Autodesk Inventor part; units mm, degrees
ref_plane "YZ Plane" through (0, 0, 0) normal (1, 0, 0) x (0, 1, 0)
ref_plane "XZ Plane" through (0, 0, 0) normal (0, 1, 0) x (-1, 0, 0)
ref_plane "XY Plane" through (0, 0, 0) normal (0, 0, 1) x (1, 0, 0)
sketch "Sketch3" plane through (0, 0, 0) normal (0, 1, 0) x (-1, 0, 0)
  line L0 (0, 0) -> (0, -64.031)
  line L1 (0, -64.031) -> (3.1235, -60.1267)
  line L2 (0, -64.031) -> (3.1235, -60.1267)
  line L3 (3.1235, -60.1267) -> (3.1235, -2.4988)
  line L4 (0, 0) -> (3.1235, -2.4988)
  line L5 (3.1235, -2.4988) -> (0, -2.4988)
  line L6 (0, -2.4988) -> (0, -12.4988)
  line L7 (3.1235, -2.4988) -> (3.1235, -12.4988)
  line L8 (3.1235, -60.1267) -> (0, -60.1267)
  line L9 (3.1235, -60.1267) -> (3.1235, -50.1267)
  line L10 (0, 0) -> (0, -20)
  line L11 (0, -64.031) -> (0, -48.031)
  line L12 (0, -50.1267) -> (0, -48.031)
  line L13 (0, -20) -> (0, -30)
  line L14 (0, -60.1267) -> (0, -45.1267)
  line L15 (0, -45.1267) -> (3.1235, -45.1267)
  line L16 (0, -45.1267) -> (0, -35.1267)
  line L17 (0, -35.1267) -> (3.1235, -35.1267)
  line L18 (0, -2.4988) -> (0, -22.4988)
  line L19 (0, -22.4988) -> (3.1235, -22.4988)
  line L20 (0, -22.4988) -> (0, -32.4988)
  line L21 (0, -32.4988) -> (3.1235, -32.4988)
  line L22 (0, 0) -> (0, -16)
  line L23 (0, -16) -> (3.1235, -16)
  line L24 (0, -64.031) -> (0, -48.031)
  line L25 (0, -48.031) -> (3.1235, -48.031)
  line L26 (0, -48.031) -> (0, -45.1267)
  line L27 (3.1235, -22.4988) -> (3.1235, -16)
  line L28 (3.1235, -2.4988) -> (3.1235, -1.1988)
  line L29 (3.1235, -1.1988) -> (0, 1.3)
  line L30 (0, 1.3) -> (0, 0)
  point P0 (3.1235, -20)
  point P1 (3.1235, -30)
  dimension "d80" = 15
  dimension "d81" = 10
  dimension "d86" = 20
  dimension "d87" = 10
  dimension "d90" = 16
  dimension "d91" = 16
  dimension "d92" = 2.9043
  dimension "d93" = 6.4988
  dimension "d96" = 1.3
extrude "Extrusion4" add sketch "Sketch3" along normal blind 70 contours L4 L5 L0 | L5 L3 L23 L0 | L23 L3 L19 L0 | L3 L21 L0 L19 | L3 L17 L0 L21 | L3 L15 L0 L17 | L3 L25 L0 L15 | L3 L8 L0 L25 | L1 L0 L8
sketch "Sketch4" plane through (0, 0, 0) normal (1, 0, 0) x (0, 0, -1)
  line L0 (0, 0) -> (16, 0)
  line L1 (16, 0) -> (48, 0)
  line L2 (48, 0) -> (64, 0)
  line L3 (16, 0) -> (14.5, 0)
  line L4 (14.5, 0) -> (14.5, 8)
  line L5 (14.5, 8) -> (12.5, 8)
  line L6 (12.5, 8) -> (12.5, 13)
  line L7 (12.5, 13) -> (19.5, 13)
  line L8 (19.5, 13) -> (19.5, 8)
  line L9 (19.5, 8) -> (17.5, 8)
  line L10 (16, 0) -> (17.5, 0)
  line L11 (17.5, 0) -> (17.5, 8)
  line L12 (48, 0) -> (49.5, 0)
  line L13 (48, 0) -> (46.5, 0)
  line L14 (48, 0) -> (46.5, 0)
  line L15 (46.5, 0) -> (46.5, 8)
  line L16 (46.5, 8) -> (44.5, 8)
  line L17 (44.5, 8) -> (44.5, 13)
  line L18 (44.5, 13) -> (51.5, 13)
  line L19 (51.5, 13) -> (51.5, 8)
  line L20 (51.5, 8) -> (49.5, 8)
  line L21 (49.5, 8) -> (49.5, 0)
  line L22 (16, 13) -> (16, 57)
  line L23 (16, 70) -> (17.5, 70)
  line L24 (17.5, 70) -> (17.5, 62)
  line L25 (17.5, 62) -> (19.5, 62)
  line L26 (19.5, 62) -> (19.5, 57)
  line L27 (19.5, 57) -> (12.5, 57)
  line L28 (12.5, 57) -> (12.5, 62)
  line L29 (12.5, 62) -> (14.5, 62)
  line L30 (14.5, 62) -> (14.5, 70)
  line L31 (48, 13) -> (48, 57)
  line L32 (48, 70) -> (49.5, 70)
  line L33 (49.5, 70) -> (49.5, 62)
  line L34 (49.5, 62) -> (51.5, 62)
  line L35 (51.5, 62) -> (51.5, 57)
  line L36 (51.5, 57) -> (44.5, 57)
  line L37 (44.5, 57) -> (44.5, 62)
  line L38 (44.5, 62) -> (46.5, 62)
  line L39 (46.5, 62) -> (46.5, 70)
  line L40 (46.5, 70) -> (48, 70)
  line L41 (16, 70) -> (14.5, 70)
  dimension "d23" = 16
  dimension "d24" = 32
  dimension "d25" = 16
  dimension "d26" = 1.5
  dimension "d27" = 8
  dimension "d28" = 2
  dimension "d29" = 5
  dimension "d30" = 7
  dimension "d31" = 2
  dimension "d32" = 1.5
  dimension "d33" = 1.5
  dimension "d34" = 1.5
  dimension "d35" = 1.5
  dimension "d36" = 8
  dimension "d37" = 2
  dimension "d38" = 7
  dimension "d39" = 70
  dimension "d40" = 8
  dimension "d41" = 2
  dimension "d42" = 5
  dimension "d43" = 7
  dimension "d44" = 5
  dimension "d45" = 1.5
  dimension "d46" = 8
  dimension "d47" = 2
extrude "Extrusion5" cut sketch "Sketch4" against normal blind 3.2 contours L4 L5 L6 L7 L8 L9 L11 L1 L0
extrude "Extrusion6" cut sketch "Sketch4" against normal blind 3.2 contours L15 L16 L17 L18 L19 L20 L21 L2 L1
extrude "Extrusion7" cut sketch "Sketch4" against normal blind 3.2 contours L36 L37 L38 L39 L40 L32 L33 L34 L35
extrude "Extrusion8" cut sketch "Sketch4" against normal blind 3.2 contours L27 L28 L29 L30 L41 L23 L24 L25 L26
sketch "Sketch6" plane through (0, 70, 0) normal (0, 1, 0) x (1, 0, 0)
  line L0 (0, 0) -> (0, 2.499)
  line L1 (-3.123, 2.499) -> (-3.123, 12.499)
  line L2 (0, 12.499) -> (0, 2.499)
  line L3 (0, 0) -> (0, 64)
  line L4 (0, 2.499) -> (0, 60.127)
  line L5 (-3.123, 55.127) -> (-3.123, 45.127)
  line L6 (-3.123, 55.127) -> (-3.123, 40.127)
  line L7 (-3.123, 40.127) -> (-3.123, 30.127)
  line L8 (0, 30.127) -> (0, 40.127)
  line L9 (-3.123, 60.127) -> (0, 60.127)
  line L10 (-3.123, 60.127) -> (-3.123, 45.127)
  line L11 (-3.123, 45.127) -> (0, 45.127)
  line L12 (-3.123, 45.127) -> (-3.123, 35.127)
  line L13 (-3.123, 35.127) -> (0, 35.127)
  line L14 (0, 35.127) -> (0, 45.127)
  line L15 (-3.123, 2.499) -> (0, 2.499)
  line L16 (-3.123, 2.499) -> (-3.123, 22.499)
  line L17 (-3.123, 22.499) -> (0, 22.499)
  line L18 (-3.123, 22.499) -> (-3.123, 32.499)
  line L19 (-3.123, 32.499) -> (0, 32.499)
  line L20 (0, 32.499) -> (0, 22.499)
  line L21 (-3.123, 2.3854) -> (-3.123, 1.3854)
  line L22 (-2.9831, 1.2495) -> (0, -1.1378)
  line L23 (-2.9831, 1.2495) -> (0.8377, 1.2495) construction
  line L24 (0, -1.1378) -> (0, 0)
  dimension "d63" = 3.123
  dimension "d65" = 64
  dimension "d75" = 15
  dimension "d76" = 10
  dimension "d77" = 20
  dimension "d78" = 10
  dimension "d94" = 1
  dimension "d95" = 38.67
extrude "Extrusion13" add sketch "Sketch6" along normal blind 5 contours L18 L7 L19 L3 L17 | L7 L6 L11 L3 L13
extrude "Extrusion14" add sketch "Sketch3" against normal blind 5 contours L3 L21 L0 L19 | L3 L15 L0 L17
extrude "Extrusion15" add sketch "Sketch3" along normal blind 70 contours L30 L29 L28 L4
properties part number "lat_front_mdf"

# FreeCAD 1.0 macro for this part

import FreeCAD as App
import Part
import Sketcher
from FreeCAD import Vector
Q = App.Units.Quantity

doc = App.newDocument("Part")
body = doc.addObject("PartDesign::Body", "Body")

# Sketch on XZ plane
sketch1 = body.newObject("Sketcher::SketchObject", "Sketch")
sketch1.AttachmentSupport = (doc.getObject("XZ_Plane"), [""])
sketch1.MapMode = "FlatFace"
sketch1.addGeometry(Part.LineSegment(Vector(-3.1, -2.5, 0), Vector(0, 0, 0)), False)
sketch1.addGeometry(Part.LineSegment(Vector(0, 0, 0), Vector(0, -64, 0)), False)
sketch1.addGeometry(Part.LineSegment(Vector(0, -64, 0), Vector(-3.1, -60.1, 0)), False)
sketch1.addGeometry(Part.LineSegment(Vector(-3.1, -60.1, 0), Vector(-3.1, -2.5, 0)), False)
sketch1.addConstraint(Sketcher.Constraint("Coincident", 0, 2, 1, 1))
sketch1.addConstraint(Sketcher.Constraint("Coincident", 1, 2, 2, 1))
sketch1.addConstraint(Sketcher.Constraint("Coincident", 2, 2, 3, 1))
sketch1.addConstraint(Sketcher.Constraint("Coincident", 3, 2, 0, 1))
sketch1.addConstraint(Sketcher.Constraint("Vertical", 1))
sketch1.addConstraint(Sketcher.Constraint("Vertical", 3))
sketch1.addConstraint(Sketcher.Constraint("Coincident", 0, 2, -1, 1))
sketch1.addConstraint(Sketcher.Constraint("Perpendicular", 0, 2))
sketch1.addConstraint(Sketcher.Constraint("Distance", 0, 4.0))
sketch1.addConstraint(Sketcher.Constraint("Distance", 2, 5.0))
sketch1.addConstraint(Sketcher.Constraint("DistanceY", 1, 2, 1, 1, 64.031))
pad1 = body.newObject("PartDesign::Pad", "Pad")
pad1.Profile = sketch1
pad1.Length = 70
pad1.Reversed = True

# Sketch on YZ plane
sketch2 = body.newObject("Sketcher::SketchObject", "Sketch001")
sketch2.AttachmentSupport = (doc.getObject("YZ_Plane"), [""])
sketch2.MapMode = "FlatFace"
sketch2.addGeometry(Part.LineSegment(Vector(8, -14.5, 0), Vector(0, -14.5, 0)), False)
sketch2.addGeometry(Part.LineSegment(Vector(0, -14.5, 0), Vector(0, -17.5, 0)), False)
sketch2.addGeometry(Part.LineSegment(Vector(0, -17.5, 0), Vector(8, -17.5, 0)), False)
sketch2.addGeometry(Part.LineSegment(Vector(8, -17.5, 0), Vector(8, -19.5, 0)), False)
sketch2.addGeometry(Part.LineSegment(Vector(8, -19.5, 0), Vector(13, -19.5, 0)), False)
sketch2.addGeometry(Part.LineSegment(Vector(13, -19.5, 0), Vector(13, -12.5, 0)), False)
sketch2.addGeometry(Part.LineSegment(Vector(13, -12.5, 0), Vector(8, -12.5, 0)), False)
sketch2.addGeometry(Part.LineSegment(Vector(8, -12.5, 0), Vector(8, -14.5, 0)), False)
sketch2.addConstraint(Sketcher.Constraint("Coincident", 0, 2, 1, 1))
sketch2.addConstraint(Sketcher.Constraint("Coincident", 1, 2, 2, 1))
sketch2.addConstraint(Sketcher.Constraint("Coincident", 2, 2, 3, 1))
sketch2.addConstraint(Sketcher.Constraint("Coincident", 3, 2, 4, 1))
sketch2.addConstraint(Sketcher.Constraint("Coincident", 4, 2, 5, 1))
sketch2.addConstraint(Sketcher.Constraint("Coincident", 5, 2, 6, 1))
sketch2.addConstraint(Sketcher.Constraint("Coincident", 6, 2, 7, 1))
sketch2.addConstraint(Sketcher.Constraint("Coincident", 7, 2, 0, 1))
sketch2.addConstraint(Sketcher.Constraint("Horizontal", 0))
sketch2.addConstraint(Sketcher.Constraint("Vertical", 1))
sketch2.addConstraint(Sketcher.Constraint("Horizontal", 2))
sketch2.addConstraint(Sketcher.Constraint("Vertical", 3))
sketch2.addConstraint(Sketcher.Constraint("Horizontal", 4))
sketch2.addConstraint(Sketcher.Constraint("Vertical", 5))
sketch2.addConstraint(Sketcher.Constraint("Horizontal", 6))
sketch2.addConstraint(Sketcher.Constraint("Vertical", 7))
sketch2.addConstraint(Sketcher.Constraint("PointOnObject", 0, 2, -2))
sketch2.addConstraint(Sketcher.Constraint("Vertical", 3, 2, 6, 2))
sketch2.addConstraint(Sketcher.Constraint("Equal", 3, 7))
sketch2.addConstraint(Sketcher.Constraint("DistanceX", 0, 2, 0, 1, 8.0))
sketch2.addConstraint(Sketcher.Constraint("DistanceX", 4, 1, 4, 2, 5.0))
sketch2.addConstraint(Sketcher.Constraint("DistanceY", 3, 2, 3, 1, 2.0))
sketch2.addConstraint(Sketcher.Constraint("DistanceY", 5, 1, 5, 2, 7.0))
sketch2.addConstraint(Sketcher.Constraint("DistanceY", 0, 2, -1, 1, 14.5))
pocket1 = body.newObject("PartDesign::Pocket", "Pocket")
pocket1.Profile = sketch2
pocket1.Length = 3.2

# Sketch on YZ plane
sketch3 = body.newObject("Sketcher::SketchObject", "Sketch002")
sketch3.AttachmentSupport = (doc.getObject("YZ_Plane"), [""])
sketch3.MapMode = "FlatFace"
sketch3.addGeometry(Part.LineSegment(Vector(8, -46.5, 0), Vector(0, -46.5, 0)), False)
sketch3.addGeometry(Part.LineSegment(Vector(0, -46.5, 0), Vector(0, -49.5, 0)), False)
sketch3.addGeometry(Part.LineSegment(Vector(0, -49.5, 0), Vector(8, -49.5, 0)), False)
sketch3.addGeometry(Part.LineSegment(Vector(8, -49.5, 0), Vector(8, -51.5, 0)), False)
sketch3.addGeometry(Part.LineSegment(Vector(8, -51.5, 0), Vector(13, -51.5, 0)), False)
sketch3.addGeometry(Part.LineSegment(Vector(13, -51.5, 0), Vector(13, -44.5, 0)), False)
sketch3.addGeometry(Part.LineSegment(Vector(13, -44.5, 0), Vector(8, -44.5, 0)), False)
sketch3.addGeometry(Part.LineSegment(Vector(8, -44.5, 0), Vector(8, -46.5, 0)), False)
sketch3.addConstraint(Sketcher.Constraint("Coincident", 0, 2, 1, 1))
sketch3.addConstraint(Sketcher.Constraint("Coincident", 1, 2, 2, 1))
sketch3.addConstraint(Sketcher.Constraint("Coincident", 2, 2, 3, 1))
sketch3.addConstraint(Sketcher.Constraint("Coincident", 3, 2, 4, 1))
sketch3.addConstraint(Sketcher.Constraint("Coincident", 4, 2, 5, 1))
sketch3.addConstraint(Sketcher.Constraint("Coincident", 5, 2, 6, 1))
sketch3.addConstraint(Sketcher.Constraint("Coincident", 6, 2, 7, 1))
sketch3.addConstraint(Sketcher.Constraint("Coincident", 7, 2, 0, 1))
sketch3.addConstraint(Sketcher.Constraint("Horizontal", 0))
sketch3.addConstraint(Sketcher.Constraint("Vertical", 1))
sketch3.addConstraint(Sketcher.Constraint("Horizontal", 2))
sketch3.addConstraint(Sketcher.Constraint("Vertical", 3))
sketch3.addConstraint(Sketcher.Constraint("Horizontal", 4))
sketch3.addConstraint(Sketcher.Constraint("Vertical", 5))
sketch3.addConstraint(Sketcher.Constraint("Horizontal", 6))
sketch3.addConstraint(Sketcher.Constraint("Vertical", 7))
sketch3.addConstraint(Sketcher.Constraint("PointOnObject", 0, 2, -2))
sketch3.addConstraint(Sketcher.Constraint("Vertical", 3, 2, 6, 2))
sketch3.addConstraint(Sketcher.Constraint("Equal", 3, 7))
sketch3.addConstraint(Sketcher.Constraint("DistanceX", 0, 2, 0, 1, 8.0))
sketch3.addConstraint(Sketcher.Constraint("DistanceX", 4, 1, 4, 2, 5.0))
sketch3.addConstraint(Sketcher.Constraint("DistanceY", 3, 2, 3, 1, 2.0))
sketch3.addConstraint(Sketcher.Constraint("DistanceY", 5, 1, 5, 2, 7.0))
sketch3.addConstraint(Sketcher.Constraint("DistanceY", 0, 2, -1, 1, 46.5))
pocket2 = body.newObject("PartDesign::Pocket", "Pocket001")
pocket2.Profile = sketch3
pocket2.Length = 3.2

# Sketch on YZ plane
sketch4 = body.newObject("Sketcher::SketchObject", "Sketch003")
sketch4.AttachmentSupport = (doc.getObject("YZ_Plane"), [""])
sketch4.MapMode = "FlatFace"
sketch4.addGeometry(Part.LineSegment(Vector(57, -44.5, 0), Vector(57, -51.5, 0)), False)
sketch4.addGeometry(Part.LineSegment(Vector(57, -51.5, 0), Vector(62, -51.5, 0)), False)
sketch4.addGeometry(Part.LineSegment(Vector(62, -51.5, 0), Vector(62, -49.5, 0)), False)
sketch4.addGeometry(Part.LineSegment(Vector(62, -49.5, 0), Vector(70, -49.5, 0)), False)
sketch4.addGeometry(Part.LineSegment(Vector(70, -49.5, 0), Vector(70, -46.5, 0)), False)
sketch4.addGeometry(Part.LineSegment(Vector(70, -46.5, 0), Vector(62, -46.5, 0)), False)
sketch4.addGeometry(Part.LineSegment(Vector(62, -46.5, 0), Vector(62, -44.5, 0)), False)
sketch4.addGeometry(Part.LineSegment(Vector(62, -44.5, 0), Vector(57, -44.5, 0)), False)
sketch4.addConstraint(Sketcher.Constraint("Coincident", 0, 2, 1, 1))
sketch4.addConstraint(Sketcher.Constraint("Coincident", 1, 2, 2, 1))
sketch4.addConstraint(Sketcher.Constraint("Coincident", 2, 2, 3, 1))
sketch4.addConstraint(Sketcher.Constraint("Coincident", 3, 2, 4, 1))
sketch4.addConstraint(Sketcher.Constraint("Coincident", 4, 2, 5, 1))
sketch4.addConstraint(Sketcher.Constraint("Coincident", 5, 2, 6, 1))
sketch4.addConstraint(Sketcher.Constraint("Coincident", 6, 2, 7, 1))
sketch4.addConstraint(Sketcher.Constraint("Coincident", 7, 2, 0, 1))
sketch4.addConstraint(Sketcher.Constraint("Vertical", 0))
sketch4.addConstraint(Sketcher.Constraint("Horizontal", 1))
sketch4.addConstraint(Sketcher.Constraint("Vertical", 2))
sketch4.addConstraint(Sketcher.Constraint("Horizontal", 3))
sketch4.addConstraint(Sketcher.Constraint("Vertical", 4))
sketch4.addConstraint(Sketcher.Constraint("Horizontal", 5))
sketch4.addConstraint(Sketcher.Constraint("Vertical", 6))
sketch4.addConstraint(Sketcher.Constraint("Horizontal", 7))
sketch4.addConstraint(Sketcher.Constraint("Vertical", 2, 2, 5, 2))
sketch4.addConstraint(Sketcher.Constraint("Equal", 2, 6))
sketch4.addConstraint(Sketcher.Constraint("DistanceX", 1, 1, 1, 2, 5.0))
sketch4.addConstraint(Sketcher.Constraint("DistanceX", 3, 1, 3, 2, 8.0))
sketch4.addConstraint(Sketcher.Constraint("DistanceY", 0, 2, 0, 1, 7.0))
sketch4.addConstraint(Sketcher.Constraint("DistanceY", 2, 1, 2, 2, 2.0))
sketch4.addConstraint(Sketcher.Constraint("DistanceX", -1, 1, 3, 2, 70.0))
sketch4.addConstraint(Sketcher.Constraint("DistanceY", 0, 2, -1, 1, 51.5))
pocket3 = body.newObject("PartDesign::Pocket", "Pocket002")
pocket3.Profile = sketch4
pocket3.Length = 3.2

# Sketch on YZ plane
sketch5 = body.newObject("Sketcher::SketchObject", "Sketch004")
sketch5.AttachmentSupport = (doc.getObject("YZ_Plane"), [""])
sketch5.MapMode = "FlatFace"
sketch5.addGeometry(Part.LineSegment(Vector(57, -12.5, 0), Vector(57, -19.5, 0)), False)
sketch5.addGeometry(Part.LineSegment(Vector(57, -19.5, 0), Vector(62, -19.5, 0)), False)
sketch5.addGeometry(Part.LineSegment(Vector(62, -19.5, 0), Vector(62, -17.5, 0)), False)
sketch5.addGeometry(Part.LineSegment(Vector(62, -17.5, 0), Vector(70, -17.5, 0)), False)
sketch5.addGeometry(Part.LineSegment(Vector(70, -17.5, 0), Vector(70, -14.5, 0)), False)
sketch5.addGeometry(Part.LineSegment(Vector(70, -14.5, 0), Vector(62, -14.5, 0)), False)
sketch5.addGeometry(Part.LineSegment(Vector(62, -14.5, 0), Vector(62, -12.5, 0)), False)
sketch5.addGeometry(Part.LineSegment(Vector(62, -12.5, 0), Vector(57, -12.5, 0)), False)
sketch5.addConstraint(Sketcher.Constraint("Coincident", 0, 2, 1, 1))
sketch5.addConstraint(Sketcher.Constraint("Coincident", 1, 2, 2, 1))
sketch5.addConstraint(Sketcher.Constraint("Coincident", 2, 2, 3, 1))
sketch5.addConstraint(Sketcher.Constraint("Coincident", 3, 2, 4, 1))
sketch5.addConstraint(Sketcher.Constraint("Coincident", 4, 2, 5, 1))
sketch5.addConstraint(Sketcher.Constraint("Coincident", 5, 2, 6, 1))
sketch5.addConstraint(Sketcher.Constraint("Coincident", 6, 2, 7, 1))
sketch5.addConstraint(Sketcher.Constraint("Coincident", 7, 2, 0, 1))
sketch5.addConstraint(Sketcher.Constraint("Vertical", 0))
sketch5.addConstraint(Sketcher.Constraint("Horizontal", 1))
sketch5.addConstraint(Sketcher.Constraint("Vertical", 2))
sketch5.addConstraint(Sketcher.Constraint("Horizontal", 3))
sketch5.addConstraint(Sketcher.Constraint("Vertical", 4))
sketch5.addConstraint(Sketcher.Constraint("Horizontal", 5))
sketch5.addConstraint(Sketcher.Constraint("Vertical", 6))
sketch5.addConstraint(Sketcher.Constraint("Horizontal", 7))
sketch5.addConstraint(Sketcher.Constraint("Vertical", 2, 2, 5, 2))
sketch5.addConstraint(Sketcher.Constraint("Equal", 2, 6))
sketch5.addConstraint(Sketcher.Constraint("DistanceX", 1, 1, 1, 2, 5.0))
sketch5.addConstraint(Sketcher.Constraint("DistanceX", 3, 1, 3, 2, 8.0))
sketch5.addConstraint(Sketcher.Constraint("DistanceY", 0, 2, 0, 1, 7.0))
sketch5.addConstraint(Sketcher.Constraint("DistanceY", 2, 1, 2, 2, 2.0))
sketch5.addConstraint(Sketcher.Constraint("DistanceX", -1, 1, 3, 2, 70.0))
sketch5.addConstraint(Sketcher.Constraint("DistanceY", 0, 2, -1, 1, 19.5))
pocket4 = body.newObject("PartDesign::Pocket", "Pocket003")
pocket4.Profile = sketch5
pocket4.Length = 3.2

# Sketch on XZ plane
sketch6 = body.newObject("Sketcher::SketchObject", "Sketch005")
sketch6.AttachmentSupport = (doc.getObject("XZ_Plane"), [""])
sketch6.MapMode = "FlatFace"
sketch6.AttachmentOffset = App.Placement(Vector(0, 0, -70), App.Rotation())
sketch6.addGeometry(Part.LineSegment(Vector(-3.1, -32.5, 0), Vector(-3.1, -22.5, 0)), False)
sketch6.addGeometry(Part.LineSegment(Vector(-3.1, -22.5, 0), Vector(0, -22.5, 0)), False)
sketch6.addGeometry(Part.LineSegment(Vector(0, -22.5, 0), Vector(0, -32.5, 0)), False)
sketch6.addGeometry(Part.LineSegment(Vector(0, -32.5, 0), Vector(-3.1, -32.5, 0)), False)
sketch6.addGeometry(Part.LineSegment(Vector(-3.1, -45.1, 0), Vector(-3.1, -35.1, 0)), False)
sketch6.addGeometry(Part.LineSegment(Vector(-3.1, -35.1, 0), Vector(0, -35.1, 0)), False)
sketch6.addGeometry(Part.LineSegment(Vector(0, -35.1, 0), Vector(0, -45.1, 0)), False)
sketch6.addGeometry(Part.LineSegment(Vector(0, -45.1, 0), Vector(-3.1, -45.1, 0)), False)
sketch6.addConstraint(Sketcher.Constraint("Coincident", 0, 2, 1, 1))
sketch6.addConstraint(Sketcher.Constraint("Coincident", 1, 2, 2, 1))
sketch6.addConstraint(Sketcher.Constraint("Coincident", 2, 2, 3, 1))
sketch6.addConstraint(Sketcher.Constraint("Coincident", 3, 2, 0, 1))
sketch6.addConstraint(Sketcher.Constraint("Coincident", 4, 2, 5, 1))
sketch6.addConstraint(Sketcher.Constraint("Coincident", 5, 2, 6, 1))
sketch6.addConstraint(Sketcher.Constraint("Coincident", 6, 2, 7, 1))
sketch6.addConstraint(Sketcher.Constraint("Coincident", 7, 2, 4, 1))
sketch6.addConstraint(Sketcher.Constraint("Vertical", 0))
sketch6.addConstraint(Sketcher.Constraint("Horizontal", 1))
sketch6.addConstraint(Sketcher.Constraint("Vertical", 2))
sketch6.addConstraint(Sketcher.Constraint("Horizontal", 3))
sketch6.addConstraint(Sketcher.Constraint("Vertical", 4))
sketch6.addConstraint(Sketcher.Constraint("Horizontal", 5))
sketch6.addConstraint(Sketcher.Constraint("Vertical", 6))
sketch6.addConstraint(Sketcher.Constraint("Horizontal", 7))
sketch6.addConstraint(Sketcher.Constraint("PointOnObject", 1, 2, -2))
sketch6.addConstraint(Sketcher.Constraint("PointOnObject", 5, 2, -2))
sketch6.addConstraint(Sketcher.Constraint("Vertical", 3, 2, 4, 2))
sketch6.addConstraint(Sketcher.Constraint("Equal", 2, 4))
sketch6.addConstraint(Sketcher.Constraint("DistanceY", 0, 1, 0, 2, 10.0))
sketch6.addConstraint(Sketcher.Constraint("DistanceX", 1, 1, 1, 2, 3.123))
sketch6.addConstraint(Sketcher.Constraint("DistanceY", 0, 2, -1, 1, 22.499))
sketch6.addConstraint(Sketcher.Constraint("DistanceY", 4, 2, -1, 1, 35.127))
pad2 = body.newObject("PartDesign::Pad", "Pad001")
pad2.Profile = sketch6
pad2.Length = 5
pad2.Reversed = True

# Sketch on XZ plane
sketch7 = body.newObject("Sketcher::SketchObject", "Sketch006")
sketch7.AttachmentSupport = (doc.getObject("XZ_Plane"), [""])
sketch7.MapMode = "FlatFace"
sketch7.addGeometry(Part.LineSegment(Vector(-3.1, -32.5, 0), Vector(-3.1, -22.5, 0)), False)
sketch7.addGeometry(Part.LineSegment(Vector(-3.1, -22.5, 0), Vector(0, -22.5, 0)), False)
sketch7.addGeometry(Part.LineSegment(Vector(0, -22.5, 0), Vector(0, -32.5, 0)), False)
sketch7.addGeometry(Part.LineSegment(Vector(0, -32.5, 0), Vector(-3.1, -32.5, 0)), False)
sketch7.addGeometry(Part.LineSegment(Vector(-3.1, -45.1, 0), Vector(-3.1, -35.1, 0)), False)
sketch7.addGeometry(Part.LineSegment(Vector(-3.1, -35.1, 0), Vector(0, -35.1, 0)), False)
sketch7.addGeometry(Part.LineSegment(Vector(0, -35.1, 0), Vector(0, -45.1, 0)), False)
sketch7.addGeometry(Part.LineSegment(Vector(0, -45.1, 0), Vector(-3.1, -45.1, 0)), False)
sketch7.addConstraint(Sketcher.Constraint("Coincident", 0, 2, 1, 1))
sketch7.addConstraint(Sketcher.Constraint("Coincident", 1, 2, 2, 1))
sketch7.addConstraint(Sketcher.Constraint("Coincident", 2, 2, 3, 1))
sketch7.addConstraint(Sketcher.Constraint("Coincident", 3, 2, 0, 1))
sketch7.addConstraint(Sketcher.Constraint("Coincident", 4, 2, 5, 1))
sketch7.addConstraint(Sketcher.Constraint("Coincident", 5, 2, 6, 1))
sketch7.addConstraint(Sketcher.Constraint("Coincident", 6, 2, 7, 1))
sketch7.addConstraint(Sketcher.Constraint("Coincident", 7, 2, 4, 1))
sketch7.addConstraint(Sketcher.Constraint("Vertical", 0))
sketch7.addConstraint(Sketcher.Constraint("Horizontal", 1))
sketch7.addConstraint(Sketcher.Constraint("Vertical", 2))
sketch7.addConstraint(Sketcher.Constraint("Horizontal", 3))
sketch7.addConstraint(Sketcher.Constraint("Vertical", 4))
sketch7.addConstraint(Sketcher.Constraint("Horizontal", 5))
sketch7.addConstraint(Sketcher.Constraint("Vertical", 6))
sketch7.addConstraint(Sketcher.Constraint("Horizontal", 7))
sketch7.addConstraint(Sketcher.Constraint("PointOnObject", 1, 2, -2))
sketch7.addConstraint(Sketcher.Constraint("PointOnObject", 5, 2, -2))
sketch7.addConstraint(Sketcher.Constraint("Vertical", 3, 2, 4, 2))
sketch7.addConstraint(Sketcher.Constraint("Equal", 2, 4))
sketch7.addConstraint(Sketcher.Constraint("DistanceY", 0, 1, 0, 2, 10.0))
sketch7.addConstraint(Sketcher.Constraint("DistanceX", 1, 1, 1, 2, 3.1235))
sketch7.addConstraint(Sketcher.Constraint("DistanceY", 4, 2, 3, 2, 2.628))
sketch7.addConstraint(Sketcher.Constraint("DistanceY", 0, 2, -1, 1, 22.4988))
pad3 = body.newObject("PartDesign::Pad", "Pad002")
pad3.Profile = sketch7
pad3.Length = 5

# Sketch on XZ plane
sketch8 = body.newObject("Sketcher::SketchObject", "Sketch007")
sketch8.AttachmentSupport = (doc.getObject("XZ_Plane"), [""])
sketch8.MapMode = "FlatFace"
sketch8.addGeometry(Part.LineSegment(Vector(0, 1.3, 0), Vector(0, 0, 0)), False)
sketch8.addGeometry(Part.LineSegment(Vector(0, 0, 0), Vector(-3.1, -2.5, 0)), False)
sketch8.addGeometry(Part.LineSegment(Vector(-3.1, -2.5, 0), Vector(-3.1, -1.2, 0)), False)
sketch8.addGeometry(Part.LineSegment(Vector(-3.1, -1.2, 0), Vector(0, 1.3, 0)), False)
sketch8.addConstraint(Sketcher.Constraint("Coincident", 0, 2, 1, 1))
sketch8.addConstraint(Sketcher.Constraint("Coincident", 1, 2, 2, 1))
sketch8.addConstraint(Sketcher.Constraint("Coincident", 2, 2, 3, 1))
sketch8.addConstraint(Sketcher.Constraint("Coincident", 3, 2, 0, 1))
sketch8.addConstraint(Sketcher.Constraint("Vertical", 0))
sketch8.addConstraint(Sketcher.Constraint("Vertical", 2))
sketch8.addConstraint(Sketcher.Constraint("Coincident", 0, 2, -1, 1))
sketch8.addConstraint(Sketcher.Constraint("Parallel", 1, 3))
sketch8.addConstraint(Sketcher.Constraint("DistanceY", 0, 2, 0, 1, 1.3))
sketch8.addConstraint(Sketcher.Constraint("Distance", 1, 4.0))
sketch8.addConstraint(Sketcher.Constraint("Angle", 1, Q("-141.3402 deg")))
pad4 = body.newObject("PartDesign::Pad", "Pad003")
pad4.Profile = sketch8
pad4.Length = 70
pad4.Reversed = True

doc.recompute()
